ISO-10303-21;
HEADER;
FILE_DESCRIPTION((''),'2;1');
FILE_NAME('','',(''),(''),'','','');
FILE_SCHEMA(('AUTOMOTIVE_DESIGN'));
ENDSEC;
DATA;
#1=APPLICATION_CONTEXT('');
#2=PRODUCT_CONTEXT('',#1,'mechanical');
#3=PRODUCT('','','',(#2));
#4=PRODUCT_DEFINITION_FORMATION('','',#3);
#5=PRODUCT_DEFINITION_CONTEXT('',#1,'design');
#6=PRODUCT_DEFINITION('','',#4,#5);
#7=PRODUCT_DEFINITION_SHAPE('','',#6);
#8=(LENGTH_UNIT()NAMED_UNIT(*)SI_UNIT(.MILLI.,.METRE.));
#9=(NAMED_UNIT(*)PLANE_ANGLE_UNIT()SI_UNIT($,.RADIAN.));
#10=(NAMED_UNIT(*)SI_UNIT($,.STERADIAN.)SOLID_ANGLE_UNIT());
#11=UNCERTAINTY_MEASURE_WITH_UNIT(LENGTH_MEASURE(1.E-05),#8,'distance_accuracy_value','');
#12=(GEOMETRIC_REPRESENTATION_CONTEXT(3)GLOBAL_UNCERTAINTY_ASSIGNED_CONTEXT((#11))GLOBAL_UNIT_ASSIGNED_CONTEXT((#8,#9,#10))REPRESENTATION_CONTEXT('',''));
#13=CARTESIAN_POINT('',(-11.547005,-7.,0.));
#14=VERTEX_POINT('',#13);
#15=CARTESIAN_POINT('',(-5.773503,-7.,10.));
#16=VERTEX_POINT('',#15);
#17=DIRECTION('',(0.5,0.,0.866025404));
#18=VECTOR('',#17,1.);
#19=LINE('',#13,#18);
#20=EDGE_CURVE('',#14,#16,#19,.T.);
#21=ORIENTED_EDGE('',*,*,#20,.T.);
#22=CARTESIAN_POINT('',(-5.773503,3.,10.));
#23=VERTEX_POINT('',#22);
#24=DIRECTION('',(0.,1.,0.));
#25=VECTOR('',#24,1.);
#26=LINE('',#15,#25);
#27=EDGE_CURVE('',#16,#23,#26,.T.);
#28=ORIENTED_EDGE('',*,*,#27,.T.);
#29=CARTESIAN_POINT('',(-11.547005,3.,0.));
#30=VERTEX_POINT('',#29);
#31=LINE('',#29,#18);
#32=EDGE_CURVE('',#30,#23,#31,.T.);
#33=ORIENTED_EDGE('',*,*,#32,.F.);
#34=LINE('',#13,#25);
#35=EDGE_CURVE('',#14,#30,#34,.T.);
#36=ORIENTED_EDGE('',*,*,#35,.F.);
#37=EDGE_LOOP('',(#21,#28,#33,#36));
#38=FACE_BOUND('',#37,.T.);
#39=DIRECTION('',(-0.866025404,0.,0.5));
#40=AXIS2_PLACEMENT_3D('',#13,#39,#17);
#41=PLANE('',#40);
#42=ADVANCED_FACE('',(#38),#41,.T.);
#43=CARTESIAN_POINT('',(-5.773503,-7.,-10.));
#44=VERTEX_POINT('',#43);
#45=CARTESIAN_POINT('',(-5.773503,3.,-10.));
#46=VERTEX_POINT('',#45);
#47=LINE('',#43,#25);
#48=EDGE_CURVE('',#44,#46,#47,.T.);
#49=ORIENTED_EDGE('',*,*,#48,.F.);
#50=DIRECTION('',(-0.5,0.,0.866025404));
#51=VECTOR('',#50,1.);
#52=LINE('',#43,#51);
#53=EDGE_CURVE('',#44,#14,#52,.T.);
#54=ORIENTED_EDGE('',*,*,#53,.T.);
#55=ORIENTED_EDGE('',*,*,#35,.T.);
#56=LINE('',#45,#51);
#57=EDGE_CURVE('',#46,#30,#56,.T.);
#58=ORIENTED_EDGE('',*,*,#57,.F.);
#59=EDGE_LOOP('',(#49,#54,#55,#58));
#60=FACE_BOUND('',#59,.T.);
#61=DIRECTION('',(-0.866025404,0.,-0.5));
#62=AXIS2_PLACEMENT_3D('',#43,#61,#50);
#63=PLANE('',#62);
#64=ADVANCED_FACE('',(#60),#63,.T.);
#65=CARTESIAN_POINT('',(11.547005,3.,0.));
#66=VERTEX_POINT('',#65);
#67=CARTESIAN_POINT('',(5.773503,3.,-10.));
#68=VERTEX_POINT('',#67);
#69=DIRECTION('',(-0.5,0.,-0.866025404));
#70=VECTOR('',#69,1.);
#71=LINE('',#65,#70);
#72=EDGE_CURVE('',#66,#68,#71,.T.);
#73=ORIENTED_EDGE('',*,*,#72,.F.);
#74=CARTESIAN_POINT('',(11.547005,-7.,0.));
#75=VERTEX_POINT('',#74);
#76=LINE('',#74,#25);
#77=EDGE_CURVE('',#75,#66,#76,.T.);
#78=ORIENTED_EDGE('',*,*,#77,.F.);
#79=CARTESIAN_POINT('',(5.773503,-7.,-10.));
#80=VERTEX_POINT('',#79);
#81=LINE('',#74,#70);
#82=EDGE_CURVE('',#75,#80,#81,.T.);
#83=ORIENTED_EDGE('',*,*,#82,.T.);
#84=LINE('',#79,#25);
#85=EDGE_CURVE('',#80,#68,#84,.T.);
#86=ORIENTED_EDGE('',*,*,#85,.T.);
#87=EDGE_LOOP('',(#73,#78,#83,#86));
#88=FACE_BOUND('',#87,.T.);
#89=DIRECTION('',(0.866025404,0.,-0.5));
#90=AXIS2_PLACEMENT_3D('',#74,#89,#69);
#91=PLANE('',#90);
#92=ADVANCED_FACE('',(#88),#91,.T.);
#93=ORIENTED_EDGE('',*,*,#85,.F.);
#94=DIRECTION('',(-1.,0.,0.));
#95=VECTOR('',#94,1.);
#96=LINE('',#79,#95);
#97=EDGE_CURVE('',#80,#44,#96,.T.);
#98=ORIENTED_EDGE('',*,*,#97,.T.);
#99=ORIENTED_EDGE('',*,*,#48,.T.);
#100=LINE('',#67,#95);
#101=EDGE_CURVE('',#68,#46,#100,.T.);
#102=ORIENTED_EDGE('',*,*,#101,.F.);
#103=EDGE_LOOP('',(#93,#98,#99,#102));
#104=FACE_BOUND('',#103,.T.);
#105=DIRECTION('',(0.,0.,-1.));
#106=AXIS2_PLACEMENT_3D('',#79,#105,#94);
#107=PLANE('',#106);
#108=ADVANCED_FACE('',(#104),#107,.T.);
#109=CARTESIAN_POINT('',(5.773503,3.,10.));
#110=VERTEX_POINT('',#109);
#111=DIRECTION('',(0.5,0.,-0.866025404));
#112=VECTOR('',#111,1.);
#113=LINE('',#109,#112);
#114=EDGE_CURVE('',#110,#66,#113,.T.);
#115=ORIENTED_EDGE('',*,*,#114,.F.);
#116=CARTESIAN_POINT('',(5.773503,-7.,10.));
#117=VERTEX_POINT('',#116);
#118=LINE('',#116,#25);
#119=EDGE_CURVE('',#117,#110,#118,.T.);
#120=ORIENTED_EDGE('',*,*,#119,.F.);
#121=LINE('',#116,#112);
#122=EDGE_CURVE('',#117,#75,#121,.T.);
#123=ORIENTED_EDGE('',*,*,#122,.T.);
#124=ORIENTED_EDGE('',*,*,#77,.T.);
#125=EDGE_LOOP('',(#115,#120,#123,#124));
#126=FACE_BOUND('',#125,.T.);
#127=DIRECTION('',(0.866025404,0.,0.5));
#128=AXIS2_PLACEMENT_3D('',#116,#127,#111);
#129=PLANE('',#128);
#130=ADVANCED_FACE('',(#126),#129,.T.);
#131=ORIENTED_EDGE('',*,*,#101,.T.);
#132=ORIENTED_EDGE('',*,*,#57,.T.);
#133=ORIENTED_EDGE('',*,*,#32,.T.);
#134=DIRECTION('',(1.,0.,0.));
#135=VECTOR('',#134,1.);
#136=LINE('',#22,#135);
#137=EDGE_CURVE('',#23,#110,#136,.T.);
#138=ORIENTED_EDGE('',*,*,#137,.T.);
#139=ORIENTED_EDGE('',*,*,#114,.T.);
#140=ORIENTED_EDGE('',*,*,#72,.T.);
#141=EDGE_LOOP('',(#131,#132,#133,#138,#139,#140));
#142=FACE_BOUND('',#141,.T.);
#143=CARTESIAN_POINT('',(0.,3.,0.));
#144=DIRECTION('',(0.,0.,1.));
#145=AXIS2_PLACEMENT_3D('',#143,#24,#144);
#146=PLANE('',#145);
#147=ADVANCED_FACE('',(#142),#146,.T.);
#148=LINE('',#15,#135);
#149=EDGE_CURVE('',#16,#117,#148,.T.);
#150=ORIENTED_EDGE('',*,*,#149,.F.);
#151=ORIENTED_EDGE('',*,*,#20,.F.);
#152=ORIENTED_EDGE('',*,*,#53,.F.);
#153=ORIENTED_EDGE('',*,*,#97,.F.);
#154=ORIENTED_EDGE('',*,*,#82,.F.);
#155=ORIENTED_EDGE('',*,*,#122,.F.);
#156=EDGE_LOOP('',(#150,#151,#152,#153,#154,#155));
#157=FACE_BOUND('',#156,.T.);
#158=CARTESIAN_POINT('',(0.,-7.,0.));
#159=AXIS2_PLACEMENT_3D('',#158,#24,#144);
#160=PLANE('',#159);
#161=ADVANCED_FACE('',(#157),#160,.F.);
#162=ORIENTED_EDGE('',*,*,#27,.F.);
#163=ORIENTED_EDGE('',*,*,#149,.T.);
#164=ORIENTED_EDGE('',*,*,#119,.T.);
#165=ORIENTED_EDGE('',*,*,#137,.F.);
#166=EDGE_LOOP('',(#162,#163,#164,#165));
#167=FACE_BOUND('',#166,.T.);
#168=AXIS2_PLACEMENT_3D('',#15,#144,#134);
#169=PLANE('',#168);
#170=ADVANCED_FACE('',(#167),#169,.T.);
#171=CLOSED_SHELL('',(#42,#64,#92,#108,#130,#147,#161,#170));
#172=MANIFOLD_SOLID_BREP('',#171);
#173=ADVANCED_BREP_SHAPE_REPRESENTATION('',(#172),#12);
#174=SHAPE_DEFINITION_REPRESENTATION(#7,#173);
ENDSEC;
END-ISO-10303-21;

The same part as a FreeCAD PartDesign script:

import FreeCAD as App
import Part
import Sketcher
Q = App.Units.Quantity


def add_polygon(sketch, points):
    """Adds a closed chain of lines whose ends are joined by coincident constraints."""
    first, n = sketch.GeometryCount, len(points)
    for a, b in zip(points, points[1:] + points[:1]):
        sketch.addGeometry(Part.LineSegment(App.Vector(*a, 0), App.Vector(*b, 0)), False)
    for i in range(n):
        sketch.addConstraint(Sketcher.Constraint("Coincident", first + i, 2, first + (i + 1) % n, 1))

doc = App.newDocument("Part")
params = doc.addObject("Spreadsheet::Sheet", "Params")
for row, (alias, value) in enumerate([
    ("pad1_length", "3 mm"),
    ("pad1_length2", "7 mm"),
], start=1):
    params.set(f"A{row}", alias)
    params.set(f"B{row}", "=" + value)
    params.setAlias(f"B{row}", alias)

body = doc.addObject("PartDesign::Body", "Body")

sketch1 = body.newObject("Sketcher::SketchObject", "Sketch")
sketch1.AttachmentSupport = (doc.getObject("XZ_Plane"), [""])
sketch1.MapMode = "FlatFace"
add_polygon(sketch1, [(-6, 10), (6, 10), (12, 0), (6, -10), (-6, -10), (-12, 0)])
sketch1.addConstraint(Sketcher.Constraint("Horizontal", 0))
sketch1.addConstraint(Sketcher.Constraint("Horizontal", 3))
sketch1.addConstraint(Sketcher.Constraint("Symmetric", 0, 2, 3, 2, -1, 1))
sketch1.addConstraint(Sketcher.Constraint("Symmetric", 1, 2, 4, 2, -1, 1))
sketch1.addConstraint(Sketcher.Constraint("PointOnObject", 1, 2, -1))
sketch1.addConstraint(Sketcher.Constraint("Parallel", 2, 5))
sketch1.addConstraint(Sketcher.Constraint("Vertical", 0, 2, 2, 2))
sketch1.addConstraint(Sketcher.Constraint("Angle", 1, Q("-60 deg")))
sketch1.addConstraint(Sketcher.Constraint("DistanceY", -1, 1, 0, 2, Q("10 mm")))
sketch1.addConstraint(Sketcher.Constraint("DistanceX", 0, 1, 0, 2, Q("11.547005 mm")))
pad1 = body.newObject("PartDesign::Pad", "Pad")
pad1.Profile = sketch1
pad1.Type = "TwoLengths"
pad1.setExpression("Length", "Params.pad1_length")
pad1.setExpression("Length2", "Params.pad1_length2")
pad1.Reversed = True

doc.recompute()
